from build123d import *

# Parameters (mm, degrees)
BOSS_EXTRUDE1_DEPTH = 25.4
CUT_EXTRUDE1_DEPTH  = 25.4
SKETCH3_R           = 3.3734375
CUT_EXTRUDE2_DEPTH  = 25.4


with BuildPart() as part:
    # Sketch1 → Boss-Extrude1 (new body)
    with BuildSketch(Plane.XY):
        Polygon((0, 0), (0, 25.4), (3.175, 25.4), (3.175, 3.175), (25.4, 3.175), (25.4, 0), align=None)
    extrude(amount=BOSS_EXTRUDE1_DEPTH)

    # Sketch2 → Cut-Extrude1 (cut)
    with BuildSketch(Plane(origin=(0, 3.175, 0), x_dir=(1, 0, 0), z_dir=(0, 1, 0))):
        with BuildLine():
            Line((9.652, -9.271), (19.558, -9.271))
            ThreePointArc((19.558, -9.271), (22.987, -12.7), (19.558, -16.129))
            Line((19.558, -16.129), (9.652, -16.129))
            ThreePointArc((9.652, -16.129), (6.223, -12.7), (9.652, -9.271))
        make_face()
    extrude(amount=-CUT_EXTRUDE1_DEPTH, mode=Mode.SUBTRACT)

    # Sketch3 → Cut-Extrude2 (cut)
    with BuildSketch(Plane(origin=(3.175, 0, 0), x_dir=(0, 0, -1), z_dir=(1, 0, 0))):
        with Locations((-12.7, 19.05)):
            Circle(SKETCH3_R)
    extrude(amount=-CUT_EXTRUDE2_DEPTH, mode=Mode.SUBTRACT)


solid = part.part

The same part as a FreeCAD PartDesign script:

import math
import FreeCAD as App
import Part
import Sketcher
from FreeCAD import Vector
Q = App.Units.Quantity


def add_polygon(sketch, points):
    """Adds a closed chain of lines whose ends are joined by coincident constraints."""
    first, n = sketch.GeometryCount, len(points)
    for a, b in zip(points, points[1:] + points[:1]):
        sketch.addGeometry(Part.LineSegment(App.Vector(*a, 0), App.Vector(*b, 0)), False)
    for i in range(n):
        sketch.addConstraint(Sketcher.Constraint("Coincident", first + i, 2, first + (i + 1) % n, 1))

doc = App.newDocument("Part")
body = doc.addObject("PartDesign::Body", "Body")

sketch1 = doc.addObject("Sketcher::SketchObject", "Sketch")
body.addObject(sketch1)
sketch1.AttachmentSupport = (doc.XY_Plane, [""])
sketch1.MapMode = "FlatFace"
add_polygon(sketch1, [(0, 25.4), (0, 0), (25.4, 0), (25.4, 3.2), (3.2, 3.2), (3.2, 25.4)])
sketch1.addConstraint([
    Sketcher.Constraint("Vertical", 0),
    Sketcher.Constraint("Horizontal", 1),
    Sketcher.Constraint("Vertical", 2),
    Sketcher.Constraint("Horizontal", 3),
    Sketcher.Constraint("Vertical", 4),
    Sketcher.Constraint("Horizontal", 5),
    Sketcher.Constraint("Coincident", 0, 2, -1, 1),
    Sketcher.Constraint("Equal", 1, 0),
    Sketcher.Constraint("Equal", 5, 2),
    Sketcher.Constraint("DistanceX", 1, 1, 1, 2, Q("1 in")),
    Sketcher.Constraint("DistanceX", 3, 2, 3, 1, Q("0.875 in")),
])
pad1 = doc.addObject("PartDesign::Pad", "Pad")
body.addObject(pad1)
pad1.Profile = sketch1
pad1.Length = Q("1 in")

sketch2 = doc.addObject("Sketcher::SketchObject", "Sketch001")
body.addObject(sketch2)
sketch2.AttachmentSupport = (doc.XZ_Plane, [""])
sketch2.MapMode = "FlatFace"
sketch2.AttachmentOffset = App.Placement(Vector(0, 0, -0.125 * 25.4), App.Rotation())
sketch2.addGeometry([
    Part.LineSegment(Vector(19.6, 9.3, 0), Vector(9.7, 9.3, 0)),
    Part.ArcOfCircle(Part.Circle(Vector(9.7, 12.7, 0), Vector(0, 0, 1), 3.4), math.radians(90), math.radians(270)),
    Part.LineSegment(Vector(9.7, 16.1, 0), Vector(19.6, 16.1, 0)),
    Part.ArcOfCircle(Part.Circle(Vector(19.6, 12.7, 0), Vector(0, 0, 1), 3.4), math.radians(-90), math.radians(90)),
], False)
sketch2.addConstraint([
    Sketcher.Constraint("Tangent", 0, 2, 1, 2),
    Sketcher.Constraint("Tangent", 1, 1, 2, 1),
    Sketcher.Constraint("Tangent", 2, 2, 3, 2),
    Sketcher.Constraint("Tangent", 3, 1, 0, 1),
    Sketcher.Constraint("Horizontal", 0),
    Sketcher.Constraint("Horizontal", 2),
    Sketcher.Constraint("Radius", 1, Q("0.135 in")),
    Sketcher.Constraint("DistanceX", 0, 2, 0, 1, Q("0.39 in")),
    Sketcher.Constraint("DistanceY", -1, 1, 1, 3, Q("0.5 in")),
    Sketcher.Constraint("DistanceX", -1, 1, 1, 3, Q("0.38 in")),
])
pocket1 = doc.addObject("PartDesign::Pocket", "Pocket")
body.addObject(pocket1)
pocket1.Profile = sketch2
pocket1.Length = Q("1 in")
pocket1.Reversed = True

sketch3 = doc.addObject("Sketcher::SketchObject", "Sketch002")
body.addObject(sketch3)
sketch3.AttachmentSupport = (doc.YZ_Plane, [""])
sketch3.MapMode = "FlatFace"
sketch3.AttachmentOffset = App.Placement(Vector(0, 0, 0.125 * 25.4), App.Rotation())
sketch3.addGeometry(Part.Circle(Vector(19.1, 12.7, 0), Vector(0, 0, 1), 3.4), False)
sketch3.addConstraint([
    Sketcher.Constraint("Diameter", 0, Q("0.265625 in")),
    Sketcher.Constraint("DistanceY", -1, 1, 0, 3, Q("0.5 in")),
    Sketcher.Constraint("DistanceX", -1, 1, 0, 3, Q("0.75 in")),
])
pocket2 = doc.addObject("PartDesign::Pocket", "Pocket001")
body.addObject(pocket2)
pocket2.Profile = sketch3
pocket2.Length = Q("1 in")

doc.recompute()
